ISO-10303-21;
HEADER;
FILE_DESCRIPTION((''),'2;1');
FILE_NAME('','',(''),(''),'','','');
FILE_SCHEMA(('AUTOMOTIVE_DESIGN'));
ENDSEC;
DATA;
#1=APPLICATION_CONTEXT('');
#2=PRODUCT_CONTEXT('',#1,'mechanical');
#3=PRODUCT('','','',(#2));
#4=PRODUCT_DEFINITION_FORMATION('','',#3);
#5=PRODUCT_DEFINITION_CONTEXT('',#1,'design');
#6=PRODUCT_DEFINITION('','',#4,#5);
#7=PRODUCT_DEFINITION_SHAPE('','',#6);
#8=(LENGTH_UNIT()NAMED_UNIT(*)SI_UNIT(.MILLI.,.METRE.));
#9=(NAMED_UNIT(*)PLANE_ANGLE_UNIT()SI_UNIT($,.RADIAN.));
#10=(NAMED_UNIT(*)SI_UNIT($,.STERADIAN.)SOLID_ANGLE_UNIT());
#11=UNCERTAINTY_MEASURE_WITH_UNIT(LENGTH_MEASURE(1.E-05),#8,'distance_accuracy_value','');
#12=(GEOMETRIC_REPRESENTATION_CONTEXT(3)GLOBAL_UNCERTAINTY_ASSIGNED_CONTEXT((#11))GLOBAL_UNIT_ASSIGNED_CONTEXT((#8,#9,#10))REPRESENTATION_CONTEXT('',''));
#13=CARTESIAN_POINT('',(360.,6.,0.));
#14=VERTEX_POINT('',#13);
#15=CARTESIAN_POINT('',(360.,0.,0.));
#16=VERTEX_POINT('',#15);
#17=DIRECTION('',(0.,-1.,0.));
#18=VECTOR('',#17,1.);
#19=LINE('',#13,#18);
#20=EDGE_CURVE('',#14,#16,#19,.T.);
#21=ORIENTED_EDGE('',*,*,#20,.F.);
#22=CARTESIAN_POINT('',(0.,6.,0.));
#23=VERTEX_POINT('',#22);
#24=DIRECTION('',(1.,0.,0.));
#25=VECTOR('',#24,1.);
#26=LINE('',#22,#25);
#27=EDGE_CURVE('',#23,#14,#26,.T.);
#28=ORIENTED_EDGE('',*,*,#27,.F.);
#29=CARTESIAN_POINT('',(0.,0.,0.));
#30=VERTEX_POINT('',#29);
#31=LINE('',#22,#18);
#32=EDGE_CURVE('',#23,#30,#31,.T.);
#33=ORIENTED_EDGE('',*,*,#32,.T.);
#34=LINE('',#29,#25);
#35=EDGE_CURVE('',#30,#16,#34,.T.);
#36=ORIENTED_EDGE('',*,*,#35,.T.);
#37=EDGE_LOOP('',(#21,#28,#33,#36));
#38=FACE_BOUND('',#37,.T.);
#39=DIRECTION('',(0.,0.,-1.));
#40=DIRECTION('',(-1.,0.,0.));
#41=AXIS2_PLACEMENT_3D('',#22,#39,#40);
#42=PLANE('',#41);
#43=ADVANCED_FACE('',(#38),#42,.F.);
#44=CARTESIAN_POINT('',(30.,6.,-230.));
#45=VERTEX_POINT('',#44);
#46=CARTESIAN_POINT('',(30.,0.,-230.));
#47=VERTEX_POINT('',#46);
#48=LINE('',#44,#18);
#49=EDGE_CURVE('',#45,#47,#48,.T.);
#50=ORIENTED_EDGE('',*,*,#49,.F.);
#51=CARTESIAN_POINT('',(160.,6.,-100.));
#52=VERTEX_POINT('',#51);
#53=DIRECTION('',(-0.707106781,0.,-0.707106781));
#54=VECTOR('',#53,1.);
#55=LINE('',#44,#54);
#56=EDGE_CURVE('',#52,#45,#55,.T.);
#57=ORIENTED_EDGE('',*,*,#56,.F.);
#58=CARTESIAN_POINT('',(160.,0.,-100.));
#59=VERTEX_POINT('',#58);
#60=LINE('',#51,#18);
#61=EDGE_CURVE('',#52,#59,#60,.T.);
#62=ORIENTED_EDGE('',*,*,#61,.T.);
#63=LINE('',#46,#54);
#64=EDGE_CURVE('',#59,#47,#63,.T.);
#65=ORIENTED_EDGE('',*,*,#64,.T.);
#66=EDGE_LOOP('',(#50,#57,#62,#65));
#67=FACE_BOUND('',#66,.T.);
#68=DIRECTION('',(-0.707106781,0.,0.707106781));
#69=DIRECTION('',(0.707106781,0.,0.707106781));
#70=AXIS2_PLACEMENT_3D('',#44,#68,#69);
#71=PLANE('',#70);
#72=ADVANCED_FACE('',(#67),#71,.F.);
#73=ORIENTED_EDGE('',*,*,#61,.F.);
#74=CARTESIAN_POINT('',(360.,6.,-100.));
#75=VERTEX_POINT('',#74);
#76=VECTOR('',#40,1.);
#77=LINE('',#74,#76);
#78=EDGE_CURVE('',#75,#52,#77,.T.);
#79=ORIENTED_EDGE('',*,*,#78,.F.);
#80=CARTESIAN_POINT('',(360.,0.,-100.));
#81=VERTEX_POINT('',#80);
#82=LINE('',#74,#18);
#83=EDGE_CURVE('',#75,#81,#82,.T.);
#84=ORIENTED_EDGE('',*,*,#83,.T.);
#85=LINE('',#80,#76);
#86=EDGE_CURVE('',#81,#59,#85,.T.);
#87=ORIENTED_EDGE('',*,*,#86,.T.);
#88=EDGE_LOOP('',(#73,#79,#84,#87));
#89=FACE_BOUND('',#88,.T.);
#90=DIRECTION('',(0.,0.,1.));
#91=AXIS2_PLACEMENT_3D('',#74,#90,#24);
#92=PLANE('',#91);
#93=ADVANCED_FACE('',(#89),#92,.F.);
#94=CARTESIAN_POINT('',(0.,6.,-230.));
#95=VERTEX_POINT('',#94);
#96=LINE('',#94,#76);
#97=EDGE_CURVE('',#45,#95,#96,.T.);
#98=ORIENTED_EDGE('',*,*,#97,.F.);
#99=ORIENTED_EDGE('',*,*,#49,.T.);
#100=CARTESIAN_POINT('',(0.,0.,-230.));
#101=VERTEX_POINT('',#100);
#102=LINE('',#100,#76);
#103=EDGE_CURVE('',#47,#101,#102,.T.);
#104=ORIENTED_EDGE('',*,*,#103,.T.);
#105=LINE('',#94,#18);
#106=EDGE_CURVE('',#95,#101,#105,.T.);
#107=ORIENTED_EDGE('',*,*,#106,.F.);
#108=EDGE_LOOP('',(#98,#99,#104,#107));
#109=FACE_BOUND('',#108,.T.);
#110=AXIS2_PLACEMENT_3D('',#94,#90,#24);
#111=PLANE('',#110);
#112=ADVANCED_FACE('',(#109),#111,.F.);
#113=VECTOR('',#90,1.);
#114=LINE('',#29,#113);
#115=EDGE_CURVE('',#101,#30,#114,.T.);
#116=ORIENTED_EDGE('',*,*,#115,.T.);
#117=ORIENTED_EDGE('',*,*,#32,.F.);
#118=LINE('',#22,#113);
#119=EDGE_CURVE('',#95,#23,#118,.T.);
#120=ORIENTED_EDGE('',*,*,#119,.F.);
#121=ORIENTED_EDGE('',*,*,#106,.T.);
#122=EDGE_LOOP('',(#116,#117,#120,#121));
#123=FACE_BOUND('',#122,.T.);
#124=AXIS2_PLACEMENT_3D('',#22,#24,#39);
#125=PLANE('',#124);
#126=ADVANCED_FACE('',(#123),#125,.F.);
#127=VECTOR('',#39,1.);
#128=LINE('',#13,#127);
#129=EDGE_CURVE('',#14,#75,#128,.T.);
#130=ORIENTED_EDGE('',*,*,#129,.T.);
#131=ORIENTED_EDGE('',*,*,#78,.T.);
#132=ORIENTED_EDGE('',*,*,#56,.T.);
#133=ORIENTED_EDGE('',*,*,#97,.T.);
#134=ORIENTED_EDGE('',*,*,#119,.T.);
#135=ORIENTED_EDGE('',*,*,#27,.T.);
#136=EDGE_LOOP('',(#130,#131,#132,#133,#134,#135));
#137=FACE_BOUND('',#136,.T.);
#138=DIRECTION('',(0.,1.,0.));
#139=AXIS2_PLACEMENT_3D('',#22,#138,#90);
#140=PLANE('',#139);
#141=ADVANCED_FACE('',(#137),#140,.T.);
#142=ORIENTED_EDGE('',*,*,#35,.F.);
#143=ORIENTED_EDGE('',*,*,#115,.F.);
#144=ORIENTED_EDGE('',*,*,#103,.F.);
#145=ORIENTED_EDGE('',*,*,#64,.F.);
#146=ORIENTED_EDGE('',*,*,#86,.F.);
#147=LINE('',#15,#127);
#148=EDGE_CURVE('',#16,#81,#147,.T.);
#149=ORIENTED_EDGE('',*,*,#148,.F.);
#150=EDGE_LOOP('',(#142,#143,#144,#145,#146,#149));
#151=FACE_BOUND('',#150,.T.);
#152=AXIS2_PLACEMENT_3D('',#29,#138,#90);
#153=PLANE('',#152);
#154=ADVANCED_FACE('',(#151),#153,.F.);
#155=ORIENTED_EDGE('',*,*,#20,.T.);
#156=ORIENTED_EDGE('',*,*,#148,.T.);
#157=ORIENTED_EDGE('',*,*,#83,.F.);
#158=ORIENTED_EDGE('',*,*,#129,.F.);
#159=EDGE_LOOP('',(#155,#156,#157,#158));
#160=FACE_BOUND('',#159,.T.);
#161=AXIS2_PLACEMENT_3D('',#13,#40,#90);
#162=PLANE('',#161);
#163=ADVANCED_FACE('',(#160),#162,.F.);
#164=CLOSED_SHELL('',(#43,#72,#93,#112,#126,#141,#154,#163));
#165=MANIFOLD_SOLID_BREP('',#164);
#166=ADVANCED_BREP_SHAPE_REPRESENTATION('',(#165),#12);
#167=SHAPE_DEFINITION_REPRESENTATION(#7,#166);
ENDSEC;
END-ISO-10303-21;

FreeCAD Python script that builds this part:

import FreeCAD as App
import Part
import Sketcher


def add_polygon(sketch, points):
    """Adds a closed chain of lines whose ends are joined by coincident constraints."""
    first, n = sketch.GeometryCount, len(points)
    for a, b in zip(points, points[1:] + points[:1]):
        sketch.addGeometry(Part.LineSegment(App.Vector(*a, 0), App.Vector(*b, 0)), False)
    for i in range(n):
        sketch.addConstraint(Sketcher.Constraint("Coincident", first + i, 2, first + (i + 1) % n, 1))

doc = App.newDocument("Part")
body = doc.addObject("PartDesign::Body", "Body")

# Sketch on XZ plane
sketch1 = doc.addObject("Sketcher::SketchObject", "Sketch")
body.addObject(sketch1)
sketch1.AttachmentSupport = (doc.XZ_Plane, [""])
sketch1.MapMode = "FlatFace"
add_polygon(sketch1, [(0, -230), (0, 0), (360, 0), (360, -100), (160, -100), (30, -230)])  # lines 0-5
sketch1.addConstraint(Sketcher.Constraint("Vertical", 0))
sketch1.addConstraint(Sketcher.Constraint("Horizontal", 1))
sketch1.addConstraint(Sketcher.Constraint("Vertical", 2))
sketch1.addConstraint(Sketcher.Constraint("Horizontal", 3))
sketch1.addConstraint(Sketcher.Constraint("Horizontal", 5))
sketch1.addConstraint(Sketcher.Constraint("Coincident", 0, 2, -1, 1))
sketch1.addConstraint(Sketcher.Constraint("DistanceX", 1, 1, 1, 2, 360.0))
sketch1.addConstraint(Sketcher.Constraint("DistanceX", 3, 2, 3, 1, 200.0))
sketch1.addConstraint(Sketcher.Constraint("DistanceX", 5, 2, 5, 1, 30.0))
sketch1.addConstraint(Sketcher.Constraint("DistanceY", 0, 1, 0, 2, 230.0))
sketch1.addConstraint(Sketcher.Constraint("DistanceY", 2, 2, 2, 1, 100.0))
pad1 = doc.addObject("PartDesign::Pad", "Pad")
body.addObject(pad1)
pad1.Profile = sketch1
pad1.Length = 6
pad1.Reversed = True

doc.recompute()
